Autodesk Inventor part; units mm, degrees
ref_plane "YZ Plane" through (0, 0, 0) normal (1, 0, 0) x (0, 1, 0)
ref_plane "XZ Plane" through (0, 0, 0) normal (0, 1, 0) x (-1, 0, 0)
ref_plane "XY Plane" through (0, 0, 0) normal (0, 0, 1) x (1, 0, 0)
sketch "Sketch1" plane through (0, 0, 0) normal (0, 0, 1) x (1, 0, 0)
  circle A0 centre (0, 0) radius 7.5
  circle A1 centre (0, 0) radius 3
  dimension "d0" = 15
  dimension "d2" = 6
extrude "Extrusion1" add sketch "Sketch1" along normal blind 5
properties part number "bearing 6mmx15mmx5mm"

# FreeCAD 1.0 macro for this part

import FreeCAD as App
import Part
import Sketcher
Q = App.Units.Quantity

doc = App.newDocument("Part")
body = doc.addObject("PartDesign::Body", "Body")

# Sketch on XY plane
sketch1 = body.newObject("Sketcher::SketchObject", "Sketch")
sketch1.AttachmentSupport = (doc.getObject("XY_Plane"), [""])
sketch1.MapMode = "FlatFace"
sketch1.addGeometry(Part.Circle(App.Vector(0, 0, 0), App.Vector(0, 0, 1), 7.5), False)
sketch1.addGeometry(Part.Circle(App.Vector(0, 0, 0), App.Vector(0, 0, 1), 3), False)
sketch1.addConstraint(Sketcher.Constraint("Coincident", 0, 3, -1, 1))
sketch1.addConstraint(Sketcher.Constraint("Coincident", 1, 3, -1, 1))
sketch1.addConstraint(Sketcher.Constraint("Diameter", 0, Q("15 mm")))
sketch1.addConstraint(Sketcher.Constraint("Diameter", 1, Q("6 mm")))
pad1 = body.newObject("PartDesign::Pad", "Pad")
pad1.Profile = sketch1
pad1.Length = 5

doc.recompute()
